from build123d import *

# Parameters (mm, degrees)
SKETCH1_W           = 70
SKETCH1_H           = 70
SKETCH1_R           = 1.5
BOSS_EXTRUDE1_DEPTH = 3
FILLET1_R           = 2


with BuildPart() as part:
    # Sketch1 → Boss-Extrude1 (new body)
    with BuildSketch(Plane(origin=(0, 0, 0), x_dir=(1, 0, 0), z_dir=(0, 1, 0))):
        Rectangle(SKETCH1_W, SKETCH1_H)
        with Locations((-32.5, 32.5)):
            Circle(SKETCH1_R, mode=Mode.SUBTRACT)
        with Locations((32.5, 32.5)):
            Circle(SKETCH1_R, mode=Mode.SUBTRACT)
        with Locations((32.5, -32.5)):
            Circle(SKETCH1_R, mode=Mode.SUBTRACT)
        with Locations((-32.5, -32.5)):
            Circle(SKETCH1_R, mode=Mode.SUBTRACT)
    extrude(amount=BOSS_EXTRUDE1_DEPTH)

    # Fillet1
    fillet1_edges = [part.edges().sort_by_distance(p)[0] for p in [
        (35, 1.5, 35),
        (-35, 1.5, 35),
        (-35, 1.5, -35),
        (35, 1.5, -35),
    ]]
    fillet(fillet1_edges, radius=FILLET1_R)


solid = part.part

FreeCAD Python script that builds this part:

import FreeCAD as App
import Part
import Sketcher


def edges_at(feature, points):
    """Names of the edges that pass closest to the given points."""
    edges = feature.Shape.Edges
    near = lambda p: min(range(len(edges)), key=lambda i: edges[i].distToShape(Part.Vertex(*p))[0])
    return sorted({f"Edge{near(p) + 1}" for p in points})


def add_polygon(sketch, points):
    """Adds a closed chain of lines whose ends are joined by coincident constraints."""
    first, n = sketch.GeometryCount, len(points)
    for a, b in zip(points, points[1:] + points[:1]):
        sketch.addGeometry(Part.LineSegment(App.Vector(*a, 0), App.Vector(*b, 0)), False)
    for i in range(n):
        sketch.addConstraint(Sketcher.Constraint("Coincident", first + i, 2, first + (i + 1) % n, 1))

doc = App.newDocument("Part")
body = doc.addObject("PartDesign::Body", "Body")

# Sketch on XZ plane
sketch1 = body.newObject("Sketcher::SketchObject", "Sketch")
sketch1.AttachmentSupport = (doc.getObject("XZ_Plane"), [""])
sketch1.MapMode = "FlatFace"
add_polygon(sketch1, [(-35, -35), (-35, 35), (35, 35), (35, -35)])  # lines 0-3
sketch1.addGeometry(Part.Circle(App.Vector(-32.5, 32.5, 0), App.Vector(0, 0, 1), 1.5), False)  # 4
sketch1.addGeometry(Part.Circle(App.Vector(32.5, 32.5, 0), App.Vector(0, 0, 1), 1.5), False)  # 5
sketch1.addGeometry(Part.Circle(App.Vector(-32.5, -32.5, 0), App.Vector(0, 0, 1), 1.5), False)  # 6
sketch1.addGeometry(Part.Circle(App.Vector(32.5, -32.5, 0), App.Vector(0, 0, 1), 1.5), False)  # 7
sketch1.addConstraint(Sketcher.Constraint("Vertical", 0))
sketch1.addConstraint(Sketcher.Constraint("Horizontal", 1))
sketch1.addConstraint(Sketcher.Constraint("Vertical", 2))
sketch1.addConstraint(Sketcher.Constraint("Horizontal", 3))
sketch1.addConstraint(Sketcher.Constraint("Equal", 4, 5))
sketch1.addConstraint(Sketcher.Constraint("Equal", 5, 6))
sketch1.addConstraint(Sketcher.Constraint("Equal", 6, 7))
sketch1.addConstraint(Sketcher.Constraint("Symmetric", 5, 3, 6, 3, -1, 1))
sketch1.addConstraint(Sketcher.Constraint("Symmetric", 4, 3, 7, 3, -1, 1))
sketch1.addConstraint(Sketcher.Constraint("Symmetric", 0, 2, 2, 2, -1, 1))
sketch1.addConstraint(Sketcher.Constraint("Symmetric", 4, 3, 5, 3, -2))
sketch1.addConstraint(Sketcher.Constraint("Equal", 3, 0))
sketch1.addConstraint(Sketcher.Constraint("Diameter", 4, 3.0))
sketch1.addConstraint(Sketcher.Constraint("DistanceX", 1, 1, 1, 2, 70.0))
sketch1.addConstraint(Sketcher.Constraint("DistanceX", 4, 3, 5, 3, 65.0))
sketch1.addConstraint(Sketcher.Constraint("DistanceY", 6, 3, 4, 3, 65.0))
pad1 = body.newObject("PartDesign::Pad", "Pad")
pad1.Profile = sketch1
pad1.Length = 3
pad1.Reversed = True
doc.recompute()

fillet = body.newObject("PartDesign::Fillet", "Fillet")
fillet.Base = (pad1, edges_at(pad1, [
    (35, 1.5, 35),
    (-35, 1.5, 35),
    (-35, 1.5, -35),
    (35, 1.5, -35),
]))
fillet.Radius = 2

doc.recompute()
